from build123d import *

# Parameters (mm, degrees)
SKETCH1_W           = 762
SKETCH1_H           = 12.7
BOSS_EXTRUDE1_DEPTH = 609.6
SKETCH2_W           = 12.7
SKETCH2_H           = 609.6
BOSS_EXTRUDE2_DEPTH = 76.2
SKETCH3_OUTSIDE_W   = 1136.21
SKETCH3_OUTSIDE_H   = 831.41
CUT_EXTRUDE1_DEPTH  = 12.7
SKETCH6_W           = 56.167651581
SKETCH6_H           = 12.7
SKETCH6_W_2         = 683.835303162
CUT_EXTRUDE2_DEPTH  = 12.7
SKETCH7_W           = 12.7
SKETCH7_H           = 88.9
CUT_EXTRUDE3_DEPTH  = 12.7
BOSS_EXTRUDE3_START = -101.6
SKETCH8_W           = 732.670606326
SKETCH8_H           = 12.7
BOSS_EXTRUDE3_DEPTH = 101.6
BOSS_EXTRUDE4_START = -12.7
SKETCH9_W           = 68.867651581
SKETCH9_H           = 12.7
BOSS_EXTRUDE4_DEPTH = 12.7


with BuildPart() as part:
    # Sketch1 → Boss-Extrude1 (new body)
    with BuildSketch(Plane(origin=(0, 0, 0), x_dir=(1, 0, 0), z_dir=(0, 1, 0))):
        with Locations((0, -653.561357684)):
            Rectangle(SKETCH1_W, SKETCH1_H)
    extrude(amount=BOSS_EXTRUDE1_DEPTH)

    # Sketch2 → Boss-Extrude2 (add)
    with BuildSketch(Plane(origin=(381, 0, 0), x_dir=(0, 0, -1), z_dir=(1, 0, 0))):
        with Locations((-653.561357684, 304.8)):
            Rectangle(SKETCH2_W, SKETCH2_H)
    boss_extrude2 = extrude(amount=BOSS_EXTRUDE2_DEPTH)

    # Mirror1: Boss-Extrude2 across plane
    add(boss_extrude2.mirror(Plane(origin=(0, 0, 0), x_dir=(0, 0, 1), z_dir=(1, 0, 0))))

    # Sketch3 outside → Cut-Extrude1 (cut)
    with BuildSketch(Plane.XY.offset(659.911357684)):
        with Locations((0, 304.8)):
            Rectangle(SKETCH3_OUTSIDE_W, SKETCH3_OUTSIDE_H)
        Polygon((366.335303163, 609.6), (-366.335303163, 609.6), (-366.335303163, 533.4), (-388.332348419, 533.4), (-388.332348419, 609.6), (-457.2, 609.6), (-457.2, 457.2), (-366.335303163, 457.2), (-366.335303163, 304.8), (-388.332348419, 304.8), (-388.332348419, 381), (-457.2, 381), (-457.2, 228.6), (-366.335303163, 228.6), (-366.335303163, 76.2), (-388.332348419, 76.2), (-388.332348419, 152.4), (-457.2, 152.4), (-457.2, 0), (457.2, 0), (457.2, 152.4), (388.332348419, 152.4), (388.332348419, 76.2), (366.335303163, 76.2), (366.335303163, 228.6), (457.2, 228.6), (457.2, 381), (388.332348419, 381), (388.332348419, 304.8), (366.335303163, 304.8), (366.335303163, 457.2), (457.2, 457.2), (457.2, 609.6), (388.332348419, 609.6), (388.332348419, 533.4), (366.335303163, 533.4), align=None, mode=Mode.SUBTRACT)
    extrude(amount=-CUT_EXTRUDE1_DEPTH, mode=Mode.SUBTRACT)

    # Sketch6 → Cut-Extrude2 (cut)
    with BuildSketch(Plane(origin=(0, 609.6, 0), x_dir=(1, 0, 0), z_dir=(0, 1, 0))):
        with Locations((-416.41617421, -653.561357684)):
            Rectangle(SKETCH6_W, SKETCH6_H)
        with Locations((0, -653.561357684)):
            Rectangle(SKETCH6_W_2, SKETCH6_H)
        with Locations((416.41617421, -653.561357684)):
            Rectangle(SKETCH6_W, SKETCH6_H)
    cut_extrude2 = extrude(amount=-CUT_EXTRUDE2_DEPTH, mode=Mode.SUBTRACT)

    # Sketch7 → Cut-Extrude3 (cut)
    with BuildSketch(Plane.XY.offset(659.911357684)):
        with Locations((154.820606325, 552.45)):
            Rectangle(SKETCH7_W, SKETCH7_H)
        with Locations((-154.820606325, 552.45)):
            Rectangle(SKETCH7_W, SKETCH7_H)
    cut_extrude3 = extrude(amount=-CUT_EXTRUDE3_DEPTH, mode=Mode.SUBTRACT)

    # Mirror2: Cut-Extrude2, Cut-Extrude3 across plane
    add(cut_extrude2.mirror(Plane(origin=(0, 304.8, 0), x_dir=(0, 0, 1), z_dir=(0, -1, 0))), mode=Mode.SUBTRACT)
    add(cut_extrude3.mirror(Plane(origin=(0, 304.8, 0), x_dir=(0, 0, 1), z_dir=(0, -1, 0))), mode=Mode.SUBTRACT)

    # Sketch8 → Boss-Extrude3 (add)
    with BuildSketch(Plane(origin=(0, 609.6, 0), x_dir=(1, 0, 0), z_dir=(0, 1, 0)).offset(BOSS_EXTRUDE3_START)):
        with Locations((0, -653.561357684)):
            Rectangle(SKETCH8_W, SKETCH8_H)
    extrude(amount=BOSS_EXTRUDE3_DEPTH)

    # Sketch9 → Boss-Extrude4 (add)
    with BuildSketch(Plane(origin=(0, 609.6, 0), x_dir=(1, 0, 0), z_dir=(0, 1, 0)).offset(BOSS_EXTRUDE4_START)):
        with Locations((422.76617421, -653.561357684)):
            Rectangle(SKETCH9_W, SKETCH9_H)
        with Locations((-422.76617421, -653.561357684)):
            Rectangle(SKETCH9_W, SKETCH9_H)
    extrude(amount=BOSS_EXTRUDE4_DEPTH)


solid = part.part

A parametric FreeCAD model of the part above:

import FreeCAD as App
import Part
import Sketcher
from FreeCAD import Vector
Q = App.Units.Quantity


def add_polygon(sketch, points):
    """Adds a closed chain of lines whose ends are joined by coincident constraints."""
    first, n = sketch.GeometryCount, len(points)
    for a, b in zip(points, points[1:] + points[:1]):
        sketch.addGeometry(Part.LineSegment(App.Vector(*a, 0), App.Vector(*b, 0)), False)
    for i in range(n):
        sketch.addConstraint(Sketcher.Constraint("Coincident", first + i, 2, first + (i + 1) % n, 1))

doc = App.newDocument("Part")
params = doc.addObject("Spreadsheet::Sheet", "Params")
for row, (alias, value) in enumerate([
    ("sketch1_width", "30 in"),
    ("sketch1_height", "0.5 in"),
    ("pad1_length", "24 in"),
    ("sketch2_width", "24 in"),
    ("sketch2_height", "0.5 in"),
    ("pad2_length", "3 in"),
    ("sketch3_width", "36 in"),
    ("sketch3_height", "3 in"),
    ("sketch3_height2", "6 in"),
    ("pocket1_length", "0.5 in"),
    ("sketch4_height", "0.5 in"),
    ("pocket2_length", "0.5 in"),
    ("sketch5_width", "0.5 in"),
    ("sketch5_height", "3.5 in"),
    ("pocket3_length", "0.5 in"),
    ("sketch6_height", "0.5 in"),
    ("pad3_length", "4 in"),
    ("sketch7_height", "0.5 in"),
    ("pad4_length", "0.5 in"),
], start=1):
    params.set(f"A{row}", alias)
    params.set(f"B{row}", "=" + value)
    params.setAlias(f"B{row}", alias)

body = doc.addObject("PartDesign::Body", "Body")

# Sketch on XZ plane
sketch1 = body.newObject("Sketcher::SketchObject", "Sketch")
sketch1.AttachmentSupport = (doc.getObject("XZ_Plane"), [""])
sketch1.MapMode = "FlatFace"
add_polygon(sketch1, [(-381, 647), (-381, 660), (381, 660), (381, 647)])  # lines 0-3
sketch1.addConstraint(Sketcher.Constraint("Vertical", 0))
sketch1.addConstraint(Sketcher.Constraint("Horizontal", 1))
sketch1.addConstraint(Sketcher.Constraint("Vertical", 2))
sketch1.addConstraint(Sketcher.Constraint("Horizontal", 3))
sketch1.addConstraint(Sketcher.Constraint("DistanceX", 1, 1, 1, 2, Q("30 in")))
sketch1.addConstraint(Sketcher.Constraint("DistanceY", 0, 1, 0, 2, Q("0.5 in")))
sketch1.addConstraint(Sketcher.Constraint("DistanceX", 0, 2, -1, 1, Q("15 in")))
sketch1.addConstraint(Sketcher.Constraint("DistanceY", -1, 1, 0, 2, Q("659.911358 mm")))
sketch1.setExpression("Constraints[8]", "Params.sketch1_width")
sketch1.setExpression("Constraints[9]", "Params.sketch1_height")
pad1 = body.newObject("PartDesign::Pad", "Pad")
pad1.Profile = sketch1
pad1.setExpression("Length", "Params.pad1_length")
pad1.Reversed = True

# Sketch on YZ plane
sketch2 = body.newObject("Sketcher::SketchObject", "Sketch001")
sketch2.AttachmentSupport = (doc.getObject("YZ_Plane"), [""])
sketch2.MapMode = "FlatFace"
sketch2.AttachmentOffset = App.Placement(Vector(0, 0, 15 * 25.4), App.Rotation())
add_polygon(sketch2, [(610, 660), (0, 660), (0, 647), (610, 647)])  # lines 0-3
sketch2.addConstraint(Sketcher.Constraint("Horizontal", 0))
sketch2.addConstraint(Sketcher.Constraint("Vertical", 1))
sketch2.addConstraint(Sketcher.Constraint("Horizontal", 2))
sketch2.addConstraint(Sketcher.Constraint("Vertical", 3))
sketch2.addConstraint(Sketcher.Constraint("PointOnObject", 0, 2, -2))
sketch2.addConstraint(Sketcher.Constraint("DistanceX", 0, 2, 0, 1, Q("24 in")))
sketch2.addConstraint(Sketcher.Constraint("DistanceY", 1, 2, 1, 1, Q("0.5 in")))
sketch2.addConstraint(Sketcher.Constraint("DistanceY", -1, 1, 0, 2, Q("659.911358 mm")))
sketch2.setExpression("Constraints[9]", "Params.sketch2_width")
sketch2.setExpression("Constraints[10]", "Params.sketch2_height")
pad2 = body.newObject("PartDesign::Pad", "Pad001")
pad2.Profile = sketch2
pad2.setExpression("Length", "Params.pad2_length")
doc.recompute()

mirrored = body.newObject("PartDesign::Mirrored", "Mirrored")
mirrored.Originals = [pad2]
mirrored.MirrorPlane = (doc.getObject("YZ_Plane"), [""])
body.Tip = mirrored

# Sketch on XY plane
sketch3 = body.newObject("Sketcher::SketchObject", "Sketch002")
sketch3.AttachmentSupport = (doc.getObject("XY_Plane"), [""])
sketch3.MapMode = "FlatFace"
sketch3.AttachmentOffset = App.Placement(Vector(0, 0, 659.911358), App.Rotation())
add_polygon(sketch3, [(-568, 721), (-568, -111), (568, -111), (568, 721)])  # lines 0-3
add_polygon(sketch3, [(-366, 610), (366, 610), (366, 533), (388, 533), (388, 610), (457, 610), (457, 457), (366, 457), (366, 305), (388, 305), (388, 381), (457, 381), (457, 229), (366, 229), (366, 76), (388, 76), (388, 152), (457, 152), (457, 0), (-457, 0), (-457, 152), (-388, 152), (-388, 76), (-366, 76), (-366, 229), (-457, 229), (-457, 381), (-388, 381), (-388, 305), (-366, 305), (-366, 457), (-457, 457), (-457, 610), (-388, 610), (-388, 533), (-366, 533)])  # lines 4-39
sketch3.addConstraint(Sketcher.Constraint("Vertical", 0))
sketch3.addConstraint(Sketcher.Constraint("Horizontal", 1))
sketch3.addConstraint(Sketcher.Constraint("Vertical", 2))
sketch3.addConstraint(Sketcher.Constraint("Horizontal", 3))
sketch3.addConstraint(Sketcher.Constraint("Horizontal", 4))
sketch3.addConstraint(Sketcher.Constraint("Vertical", 5))
sketch3.addConstraint(Sketcher.Constraint("Horizontal", 6))
sketch3.addConstraint(Sketcher.Constraint("Vertical", 7))
sketch3.addConstraint(Sketcher.Constraint("Horizontal", 8))
sketch3.addConstraint(Sketcher.Constraint("Vertical", 9))
sketch3.addConstraint(Sketcher.Constraint("Horizontal", 10))
sketch3.addConstraint(Sketcher.Constraint("Vertical", 11))
sketch3.addConstraint(Sketcher.Constraint("Horizontal", 12))
sketch3.addConstraint(Sketcher.Constraint("Vertical", 13))
sketch3.addConstraint(Sketcher.Constraint("Horizontal", 14))
sketch3.addConstraint(Sketcher.Constraint("Vertical", 15))
sketch3.addConstraint(Sketcher.Constraint("Horizontal", 16))
sketch3.addConstraint(Sketcher.Constraint("Vertical", 17))
sketch3.addConstraint(Sketcher.Constraint("Horizontal", 18))
sketch3.addConstraint(Sketcher.Constraint("Vertical", 19))
sketch3.addConstraint(Sketcher.Constraint("Horizontal", 20))
sketch3.addConstraint(Sketcher.Constraint("Vertical", 21))
sketch3.addConstraint(Sketcher.Constraint("Horizontal", 22))
sketch3.addConstraint(Sketcher.Constraint("Vertical", 23))
sketch3.addConstraint(Sketcher.Constraint("Horizontal", 24))
sketch3.addConstraint(Sketcher.Constraint("Vertical", 25))
sketch3.addConstraint(Sketcher.Constraint("Horizontal", 26))
sketch3.addConstraint(Sketcher.Constraint("Vertical", 27))
sketch3.addConstraint(Sketcher.Constraint("Horizontal", 28))
sketch3.addConstraint(Sketcher.Constraint("Vertical", 29))
sketch3.addConstraint(Sketcher.Constraint("Horizontal", 30))
sketch3.addConstraint(Sketcher.Constraint("Vertical", 31))
sketch3.addConstraint(Sketcher.Constraint("Horizontal", 32))
sketch3.addConstraint(Sketcher.Constraint("Vertical", 33))
sketch3.addConstraint(Sketcher.Constraint("Horizontal", 34))
sketch3.addConstraint(Sketcher.Constraint("Vertical", 35))
sketch3.addConstraint(Sketcher.Constraint("Horizontal", 36))
sketch3.addConstraint(Sketcher.Constraint("Vertical", 37))
sketch3.addConstraint(Sketcher.Constraint("Horizontal", 38))
sketch3.addConstraint(Sketcher.Constraint("Vertical", 39))
sketch3.addConstraint(Sketcher.Constraint("Symmetric", 21, 2, 22, 2, -1, 1))
sketch3.addConstraint(Sketcher.Constraint("Symmetric", 19, 2, 24, 2, -2))
sketch3.addConstraint(Sketcher.Constraint("Symmetric", 17, 2, 26, 2, -2))
sketch3.addConstraint(Sketcher.Constraint("Symmetric", 15, 2, 28, 2, -2))
sketch3.addConstraint(Sketcher.Constraint("Symmetric", 13, 2, 30, 2, -2))
sketch3.addConstraint(Sketcher.Constraint("Symmetric", 11, 2, 32, 2, -2))
sketch3.addConstraint(Sketcher.Constraint("Symmetric", 9, 2, 34, 2, -2))
sketch3.addConstraint(Sketcher.Constraint("Symmetric", 7, 2, 36, 2, -2))
sketch3.addConstraint(Sketcher.Constraint("Symmetric", 5, 2, 38, 2, -2))
sketch3.addConstraint(Sketcher.Constraint("Horizontal", 4, 2, 7, 2))
sketch3.addConstraint(Sketcher.Constraint("Vertical", 5, 2, 10, 2))
sketch3.addConstraint(Sketcher.Constraint("Vertical", 7, 2, 12, 2))
sketch3.addConstraint(Sketcher.Constraint("Vertical", 9, 2, 14, 2))
sketch3.addConstraint(Sketcher.Constraint("Vertical", 11, 2, 16, 2))
sketch3.addConstraint(Sketcher.Constraint("Vertical", 13, 2, 18, 2))
sketch3.addConstraint(Sketcher.Constraint("Vertical", 15, 2, 20, 2))
sketch3.addConstraint(Sketcher.Constraint("Equal", 9, 11))
sketch3.addConstraint(Sketcher.Constraint("Equal", 7, 13))
sketch3.addConstraint(Sketcher.Constraint("Equal", 11, 15))
sketch3.addConstraint(Sketcher.Constraint("Equal", 15, 17))
sketch3.addConstraint(Sketcher.Constraint("Equal", 13, 19))
sketch3.addConstraint(Sketcher.Constraint("Equal", 17, 21))
sketch3.addConstraint(Sketcher.Constraint("DistanceX", 22, 2, 22, 1, Q("36 in")))
sketch3.addConstraint(Sketcher.Constraint("DistanceY", 5, 2, 5, 1, Q("3 in")))
sketch3.addConstraint(Sketcher.Constraint("DistanceY", 9, 2, 9, 1, Q("6 in")))
sketch3.addConstraint(Sketcher.Constraint("DistanceX", 1, 1, 1, 2, Q("1136.21 mm")))
sketch3.addConstraint(Sketcher.Constraint("DistanceY", 0, 2, 0, 1, Q("831.41 mm")))
sketch3.addConstraint(Sketcher.Constraint("DistanceX", 8, 1, 8, 2, Q("68.867652 mm")))
sketch3.addConstraint(Sketcher.Constraint("DistanceX", 0, 2, -1, 1, Q("568.105 mm")))
sketch3.addConstraint(Sketcher.Constraint("DistanceY", 0, 2, -1, 1, Q("110.905 mm")))
sketch3.addConstraint(Sketcher.Constraint("DistanceX", 4, 1, 4, 2, Q("732.670606 mm")))
sketch3.setExpression("Constraints[102]", "Params.sketch3_width")
sketch3.setExpression("Constraints[103]", "Params.sketch3_height")
sketch3.setExpression("Constraints[104]", "Params.sketch3_height2")
pocket1 = body.newObject("PartDesign::Pocket", "Pocket")
pocket1.Profile = sketch3
pocket1.setExpression("Length", "Params.pocket1_length")

# Sketch on XZ plane
sketch4 = body.newObject("Sketcher::SketchObject", "Sketch003")
sketch4.AttachmentSupport = (doc.getObject("XZ_Plane"), [""])
sketch4.MapMode = "FlatFace"
sketch4.AttachmentOffset = App.Placement(Vector(0, 0, -24 * 25.4), App.Rotation())
add_polygon(sketch4, [(-444, 647), (-444, 660), (-388, 660), (-388, 647)])  # lines 0-3
add_polygon(sketch4, [(-342, 647), (-342, 660), (342, 660), (342, 647)])  # lines 4-7
add_polygon(sketch4, [(388, 647), (388, 660), (444, 660), (444, 647)])  # lines 8-11
sketch4.addConstraint(Sketcher.Constraint("Vertical", 0))
sketch4.addConstraint(Sketcher.Constraint("Horizontal", 1))
sketch4.addConstraint(Sketcher.Constraint("Vertical", 2))
sketch4.addConstraint(Sketcher.Constraint("Horizontal", 3))
sketch4.addConstraint(Sketcher.Constraint("Vertical", 4))
sketch4.addConstraint(Sketcher.Constraint("Horizontal", 5))
sketch4.addConstraint(Sketcher.Constraint("Vertical", 6))
sketch4.addConstraint(Sketcher.Constraint("Horizontal", 7))
sketch4.addConstraint(Sketcher.Constraint("Vertical", 8))
sketch4.addConstraint(Sketcher.Constraint("Horizontal", 9))
sketch4.addConstraint(Sketcher.Constraint("Vertical", 10))
sketch4.addConstraint(Sketcher.Constraint("Horizontal", 11))
sketch4.addConstraint(Sketcher.Constraint("Symmetric", 1, 2, 8, 2, -2))
sketch4.addConstraint(Sketcher.Constraint("Symmetric", 3, 2, 10, 2, -2))
sketch4.addConstraint(Sketcher.Constraint("Horizontal", 1, 2, 4, 2))
sketch4.addConstraint(Sketcher.Constraint("Horizontal", 3, 2, 6, 2))
sketch4.addConstraint(Sketcher.Constraint("DistanceY", 0, 1, 0, 2, Q("0.5 in")))
sketch4.addConstraint(Sketcher.Constraint("DistanceX", 0, 2, -1, 1, Q("17.5 in")))
sketch4.addConstraint(Sketcher.Constraint("DistanceX", 1, 2, 5, 2, Q("28.75 in")))
sketch4.addConstraint(Sketcher.Constraint("DistanceX", 4, 2, 8, 2, Q("28.75 in")))
sketch4.addConstraint(Sketcher.Constraint("DistanceX", 1, 1, 1, 2, Q("56.167652 mm")))
sketch4.addConstraint(Sketcher.Constraint("DistanceY", -1, 1, 0, 2, Q("659.911358 mm")))
sketch4.setExpression("Constraints[28]", "Params.sketch4_height")
pocket2 = body.newObject("PartDesign::Pocket", "Pocket001")
pocket2.Profile = sketch4
pocket2.setExpression("Length", "Params.pocket2_length")
pocket2.Reversed = True

# Sketch on XY plane
sketch5 = body.newObject("Sketcher::SketchObject", "Sketch004")
sketch5.AttachmentSupport = (doc.getObject("XY_Plane"), [""])
sketch5.MapMode = "FlatFace"
sketch5.AttachmentOffset = App.Placement(Vector(0, 0, 659.911358), App.Rotation())
add_polygon(sketch5, [(148, 597), (148, 508), (161, 508), (161, 597)])  # lines 0-3
add_polygon(sketch5, [(-161, 597), (-161, 508), (-148, 508), (-148, 597)])  # lines 4-7
sketch5.addConstraint(Sketcher.Constraint("Vertical", 0))
sketch5.addConstraint(Sketcher.Constraint("Horizontal", 1))
sketch5.addConstraint(Sketcher.Constraint("Vertical", 2))
sketch5.addConstraint(Sketcher.Constraint("Horizontal", 3))
sketch5.addConstraint(Sketcher.Constraint("Vertical", 4))
sketch5.addConstraint(Sketcher.Constraint("Horizontal", 5))
sketch5.addConstraint(Sketcher.Constraint("Vertical", 6))
sketch5.addConstraint(Sketcher.Constraint("Horizontal", 7))
sketch5.addConstraint(Sketcher.Constraint("Symmetric", 1, 2, 4, 2, -2))
sketch5.addConstraint(Sketcher.Constraint("Symmetric", 3, 2, 6, 2, -2))
sketch5.addConstraint(Sketcher.Constraint("DistanceX", 1, 1, 1, 2, Q("0.5 in")))
sketch5.addConstraint(Sketcher.Constraint("DistanceY", 0, 2, 0, 1, Q("3.5 in")))
sketch5.addConstraint(Sketcher.Constraint("DistanceY", -1, 1, 0, 2, Q("20 in")))
sketch5.addConstraint(Sketcher.Constraint("DistanceX", -1, 1, 0, 2, Q("148.470606 mm")))
sketch5.setExpression("Constraints[18]", "Params.sketch5_width")
sketch5.setExpression("Constraints[19]", "Params.sketch5_height")
pocket3 = body.newObject("PartDesign::Pocket", "Pocket002")
pocket3.Profile = sketch5
pocket3.setExpression("Length", "Params.pocket3_length")
doc.recompute()

datumplane = body.newObject("PartDesign::Plane", "DatumPlane")
datumplane.AttachmentSupport = (doc.getObject("XZ_Plane"), [""])
datumplane.MapMode = "FlatFace"
datumplane.AttachmentOffset = App.Placement(Vector(0, 0, -12 * 25.4), App.Rotation())
mirrored2 = body.newObject("PartDesign::Mirrored", "Mirrored001")
mirrored2.Originals = [pocket2, pocket3]
mirrored2.MirrorPlane = (datumplane, [""])
body.Tip = mirrored2

# Sketch on XZ plane
sketch6 = body.newObject("Sketcher::SketchObject", "Sketch005")
sketch6.AttachmentSupport = (doc.getObject("XZ_Plane"), [""])
sketch6.MapMode = "FlatFace"
sketch6.AttachmentOffset = App.Placement(Vector(0, 0, -20 * 25.4), App.Rotation())
add_polygon(sketch6, [(-366, 647), (-366, 660), (366, 660), (366, 647)])  # lines 0-3
sketch6.addConstraint(Sketcher.Constraint("Vertical", 0))
sketch6.addConstraint(Sketcher.Constraint("Horizontal", 1))
sketch6.addConstraint(Sketcher.Constraint("Vertical", 2))
sketch6.addConstraint(Sketcher.Constraint("Horizontal", 3))
sketch6.addConstraint(Sketcher.Constraint("DistanceY", 0, 1, 0, 2, Q("0.5 in")))
sketch6.addConstraint(Sketcher.Constraint("DistanceX", 1, 1, 1, 2, Q("732.670606 mm")))
sketch6.addConstraint(Sketcher.Constraint("DistanceX", 0, 2, -1, 1, Q("366.335303 mm")))
sketch6.addConstraint(Sketcher.Constraint("DistanceY", -1, 1, 0, 2, Q("659.911358 mm")))
sketch6.setExpression("Constraints[8]", "Params.sketch6_height")
pad3 = body.newObject("PartDesign::Pad", "Pad002")
pad3.Profile = sketch6
pad3.setExpression("Length", "Params.pad3_length")
pad3.Reversed = True

# Sketch on XZ plane
sketch7 = body.newObject("Sketcher::SketchObject", "Sketch006")
sketch7.AttachmentSupport = (doc.getObject("XZ_Plane"), [""])
sketch7.MapMode = "FlatFace"
sketch7.AttachmentOffset = App.Placement(Vector(0, 0, -23.5 * 25.4), App.Rotation())
add_polygon(sketch7, [(388, 647), (388, 660), (457, 660), (457, 647)])  # lines 0-3
add_polygon(sketch7, [(-457, 647), (-457, 660), (-388, 660), (-388, 647)])  # lines 4-7
sketch7.addConstraint(Sketcher.Constraint("Vertical", 0))
sketch7.addConstraint(Sketcher.Constraint("Horizontal", 1))
sketch7.addConstraint(Sketcher.Constraint("Vertical", 2))
sketch7.addConstraint(Sketcher.Constraint("Horizontal", 3))
sketch7.addConstraint(Sketcher.Constraint("Vertical", 4))
sketch7.addConstraint(Sketcher.Constraint("Horizontal", 5))
sketch7.addConstraint(Sketcher.Constraint("Vertical", 6))
sketch7.addConstraint(Sketcher.Constraint("Horizontal", 7))
sketch7.addConstraint(Sketcher.Constraint("Symmetric", 1, 2, 4, 2, -2))
sketch7.addConstraint(Sketcher.Constraint("Symmetric", 3, 2, 6, 2, -2))
sketch7.addConstraint(Sketcher.Constraint("DistanceY", 0, 1, 0, 2, Q("0.5 in")))
sketch7.addConstraint(Sketcher.Constraint("DistanceX", -1, 1, 1, 2, Q("18 in")))
sketch7.addConstraint(Sketcher.Constraint("DistanceX", 1, 1, 1, 2, Q("68.867652 mm")))
sketch7.addConstraint(Sketcher.Constraint("DistanceY", -1, 1, 0, 2, Q("659.911358 mm")))
sketch7.setExpression("Constraints[18]", "Params.sketch7_height")
pad4 = body.newObject("PartDesign::Pad", "Pad003")
pad4.Profile = sketch7
pad4.setExpression("Length", "Params.pad4_length")
pad4.Reversed = True

doc.recompute()
